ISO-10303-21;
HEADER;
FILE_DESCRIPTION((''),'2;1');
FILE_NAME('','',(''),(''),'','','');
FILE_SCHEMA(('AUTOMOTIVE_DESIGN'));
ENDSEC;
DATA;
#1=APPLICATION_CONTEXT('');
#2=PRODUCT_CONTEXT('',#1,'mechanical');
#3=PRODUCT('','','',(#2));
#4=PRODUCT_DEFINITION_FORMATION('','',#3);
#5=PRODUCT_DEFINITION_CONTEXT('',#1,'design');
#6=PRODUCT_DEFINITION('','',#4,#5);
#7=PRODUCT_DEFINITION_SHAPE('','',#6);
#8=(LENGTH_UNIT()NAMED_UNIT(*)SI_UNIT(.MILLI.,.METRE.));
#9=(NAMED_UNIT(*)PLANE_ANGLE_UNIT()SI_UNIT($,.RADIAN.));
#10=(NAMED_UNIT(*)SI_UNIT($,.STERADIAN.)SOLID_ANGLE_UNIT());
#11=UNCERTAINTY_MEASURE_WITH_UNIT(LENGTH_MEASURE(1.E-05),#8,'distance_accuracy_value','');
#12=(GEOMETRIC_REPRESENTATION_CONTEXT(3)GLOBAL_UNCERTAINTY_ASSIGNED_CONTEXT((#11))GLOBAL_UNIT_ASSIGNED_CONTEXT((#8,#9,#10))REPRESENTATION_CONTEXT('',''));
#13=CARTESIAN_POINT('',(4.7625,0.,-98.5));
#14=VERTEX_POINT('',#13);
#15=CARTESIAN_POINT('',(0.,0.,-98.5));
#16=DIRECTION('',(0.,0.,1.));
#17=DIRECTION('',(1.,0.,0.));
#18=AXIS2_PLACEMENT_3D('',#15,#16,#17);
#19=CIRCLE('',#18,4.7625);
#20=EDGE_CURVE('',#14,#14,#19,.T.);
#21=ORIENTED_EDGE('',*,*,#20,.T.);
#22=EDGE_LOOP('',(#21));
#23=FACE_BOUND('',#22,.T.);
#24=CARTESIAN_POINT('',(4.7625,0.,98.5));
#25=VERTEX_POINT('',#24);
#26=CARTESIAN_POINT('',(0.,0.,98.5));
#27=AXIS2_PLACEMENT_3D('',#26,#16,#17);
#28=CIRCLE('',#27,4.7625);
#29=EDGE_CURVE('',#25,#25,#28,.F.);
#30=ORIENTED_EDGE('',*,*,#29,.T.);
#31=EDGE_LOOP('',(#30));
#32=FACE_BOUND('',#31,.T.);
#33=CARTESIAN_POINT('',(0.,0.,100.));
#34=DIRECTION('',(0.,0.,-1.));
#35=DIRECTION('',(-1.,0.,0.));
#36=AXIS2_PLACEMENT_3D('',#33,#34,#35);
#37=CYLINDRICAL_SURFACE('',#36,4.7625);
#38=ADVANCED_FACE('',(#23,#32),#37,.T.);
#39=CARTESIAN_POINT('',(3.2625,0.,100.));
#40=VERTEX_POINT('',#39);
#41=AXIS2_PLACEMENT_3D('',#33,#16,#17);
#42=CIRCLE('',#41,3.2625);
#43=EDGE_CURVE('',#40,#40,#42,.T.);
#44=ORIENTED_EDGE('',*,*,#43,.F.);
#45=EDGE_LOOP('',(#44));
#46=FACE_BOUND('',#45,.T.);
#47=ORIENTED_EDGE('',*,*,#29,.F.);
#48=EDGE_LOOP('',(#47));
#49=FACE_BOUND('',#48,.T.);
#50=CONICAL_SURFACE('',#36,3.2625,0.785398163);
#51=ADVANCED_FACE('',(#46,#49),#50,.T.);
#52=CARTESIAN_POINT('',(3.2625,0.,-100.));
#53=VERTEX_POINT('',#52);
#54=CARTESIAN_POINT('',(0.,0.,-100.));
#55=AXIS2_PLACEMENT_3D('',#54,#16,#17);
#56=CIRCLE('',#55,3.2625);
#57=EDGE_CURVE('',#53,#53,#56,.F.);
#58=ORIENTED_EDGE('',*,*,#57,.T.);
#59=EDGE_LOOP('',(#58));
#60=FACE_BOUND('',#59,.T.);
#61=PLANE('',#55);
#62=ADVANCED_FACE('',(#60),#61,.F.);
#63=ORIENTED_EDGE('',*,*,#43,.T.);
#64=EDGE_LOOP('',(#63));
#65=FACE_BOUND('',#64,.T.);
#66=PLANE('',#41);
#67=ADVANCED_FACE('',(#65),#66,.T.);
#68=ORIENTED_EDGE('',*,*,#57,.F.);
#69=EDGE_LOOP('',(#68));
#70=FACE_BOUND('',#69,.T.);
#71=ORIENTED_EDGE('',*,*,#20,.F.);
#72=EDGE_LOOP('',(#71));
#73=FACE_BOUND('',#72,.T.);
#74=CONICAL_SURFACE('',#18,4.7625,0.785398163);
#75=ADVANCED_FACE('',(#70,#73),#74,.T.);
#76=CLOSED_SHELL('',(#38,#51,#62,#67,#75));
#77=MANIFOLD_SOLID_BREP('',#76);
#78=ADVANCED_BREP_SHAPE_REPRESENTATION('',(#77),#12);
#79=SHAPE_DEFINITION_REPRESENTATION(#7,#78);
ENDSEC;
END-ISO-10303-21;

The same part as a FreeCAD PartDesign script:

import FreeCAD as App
import Part
import Sketcher
Q = App.Units.Quantity


def edges_at(feature, points):
    """Names of the edges that pass closest to the given points."""
    edges = feature.Shape.Edges
    near = lambda p: min(range(len(edges)), key=lambda i: edges[i].distToShape(Part.Vertex(*p))[0])
    return sorted({f"Edge{near(p) + 1}" for p in points})

doc = App.newDocument("Part")
body = doc.addObject("PartDesign::Body", "Body")

# Sketch on XY plane
sketch1 = body.newObject("Sketcher::SketchObject", "Sketch")
sketch1.AttachmentSupport = (doc.getObject("XY_Plane"), [""])
sketch1.MapMode = "FlatFace"
sketch1.addGeometry(Part.Circle(App.Vector(0, 0, 0), App.Vector(0, 0, 1), 4.8), False)
sketch1.addConstraint(Sketcher.Constraint("Coincident", 0, 3, -1, 1))
sketch1.addConstraint(Sketcher.Constraint("Diameter", 0, Q("9.525 mm")))
pad1 = body.newObject("PartDesign::Pad", "Pad")
pad1.Profile = sketch1
pad1.Length = 200
pad1.Midplane = True
doc.recompute()

chamfer = body.newObject("PartDesign::Chamfer", "Chamfer")
chamfer.Base = (pad1, edges_at(pad1, [(-4.763, 0, -100), (-4.763, 0, 100)]))
chamfer.Size = 1.5

doc.recompute()
